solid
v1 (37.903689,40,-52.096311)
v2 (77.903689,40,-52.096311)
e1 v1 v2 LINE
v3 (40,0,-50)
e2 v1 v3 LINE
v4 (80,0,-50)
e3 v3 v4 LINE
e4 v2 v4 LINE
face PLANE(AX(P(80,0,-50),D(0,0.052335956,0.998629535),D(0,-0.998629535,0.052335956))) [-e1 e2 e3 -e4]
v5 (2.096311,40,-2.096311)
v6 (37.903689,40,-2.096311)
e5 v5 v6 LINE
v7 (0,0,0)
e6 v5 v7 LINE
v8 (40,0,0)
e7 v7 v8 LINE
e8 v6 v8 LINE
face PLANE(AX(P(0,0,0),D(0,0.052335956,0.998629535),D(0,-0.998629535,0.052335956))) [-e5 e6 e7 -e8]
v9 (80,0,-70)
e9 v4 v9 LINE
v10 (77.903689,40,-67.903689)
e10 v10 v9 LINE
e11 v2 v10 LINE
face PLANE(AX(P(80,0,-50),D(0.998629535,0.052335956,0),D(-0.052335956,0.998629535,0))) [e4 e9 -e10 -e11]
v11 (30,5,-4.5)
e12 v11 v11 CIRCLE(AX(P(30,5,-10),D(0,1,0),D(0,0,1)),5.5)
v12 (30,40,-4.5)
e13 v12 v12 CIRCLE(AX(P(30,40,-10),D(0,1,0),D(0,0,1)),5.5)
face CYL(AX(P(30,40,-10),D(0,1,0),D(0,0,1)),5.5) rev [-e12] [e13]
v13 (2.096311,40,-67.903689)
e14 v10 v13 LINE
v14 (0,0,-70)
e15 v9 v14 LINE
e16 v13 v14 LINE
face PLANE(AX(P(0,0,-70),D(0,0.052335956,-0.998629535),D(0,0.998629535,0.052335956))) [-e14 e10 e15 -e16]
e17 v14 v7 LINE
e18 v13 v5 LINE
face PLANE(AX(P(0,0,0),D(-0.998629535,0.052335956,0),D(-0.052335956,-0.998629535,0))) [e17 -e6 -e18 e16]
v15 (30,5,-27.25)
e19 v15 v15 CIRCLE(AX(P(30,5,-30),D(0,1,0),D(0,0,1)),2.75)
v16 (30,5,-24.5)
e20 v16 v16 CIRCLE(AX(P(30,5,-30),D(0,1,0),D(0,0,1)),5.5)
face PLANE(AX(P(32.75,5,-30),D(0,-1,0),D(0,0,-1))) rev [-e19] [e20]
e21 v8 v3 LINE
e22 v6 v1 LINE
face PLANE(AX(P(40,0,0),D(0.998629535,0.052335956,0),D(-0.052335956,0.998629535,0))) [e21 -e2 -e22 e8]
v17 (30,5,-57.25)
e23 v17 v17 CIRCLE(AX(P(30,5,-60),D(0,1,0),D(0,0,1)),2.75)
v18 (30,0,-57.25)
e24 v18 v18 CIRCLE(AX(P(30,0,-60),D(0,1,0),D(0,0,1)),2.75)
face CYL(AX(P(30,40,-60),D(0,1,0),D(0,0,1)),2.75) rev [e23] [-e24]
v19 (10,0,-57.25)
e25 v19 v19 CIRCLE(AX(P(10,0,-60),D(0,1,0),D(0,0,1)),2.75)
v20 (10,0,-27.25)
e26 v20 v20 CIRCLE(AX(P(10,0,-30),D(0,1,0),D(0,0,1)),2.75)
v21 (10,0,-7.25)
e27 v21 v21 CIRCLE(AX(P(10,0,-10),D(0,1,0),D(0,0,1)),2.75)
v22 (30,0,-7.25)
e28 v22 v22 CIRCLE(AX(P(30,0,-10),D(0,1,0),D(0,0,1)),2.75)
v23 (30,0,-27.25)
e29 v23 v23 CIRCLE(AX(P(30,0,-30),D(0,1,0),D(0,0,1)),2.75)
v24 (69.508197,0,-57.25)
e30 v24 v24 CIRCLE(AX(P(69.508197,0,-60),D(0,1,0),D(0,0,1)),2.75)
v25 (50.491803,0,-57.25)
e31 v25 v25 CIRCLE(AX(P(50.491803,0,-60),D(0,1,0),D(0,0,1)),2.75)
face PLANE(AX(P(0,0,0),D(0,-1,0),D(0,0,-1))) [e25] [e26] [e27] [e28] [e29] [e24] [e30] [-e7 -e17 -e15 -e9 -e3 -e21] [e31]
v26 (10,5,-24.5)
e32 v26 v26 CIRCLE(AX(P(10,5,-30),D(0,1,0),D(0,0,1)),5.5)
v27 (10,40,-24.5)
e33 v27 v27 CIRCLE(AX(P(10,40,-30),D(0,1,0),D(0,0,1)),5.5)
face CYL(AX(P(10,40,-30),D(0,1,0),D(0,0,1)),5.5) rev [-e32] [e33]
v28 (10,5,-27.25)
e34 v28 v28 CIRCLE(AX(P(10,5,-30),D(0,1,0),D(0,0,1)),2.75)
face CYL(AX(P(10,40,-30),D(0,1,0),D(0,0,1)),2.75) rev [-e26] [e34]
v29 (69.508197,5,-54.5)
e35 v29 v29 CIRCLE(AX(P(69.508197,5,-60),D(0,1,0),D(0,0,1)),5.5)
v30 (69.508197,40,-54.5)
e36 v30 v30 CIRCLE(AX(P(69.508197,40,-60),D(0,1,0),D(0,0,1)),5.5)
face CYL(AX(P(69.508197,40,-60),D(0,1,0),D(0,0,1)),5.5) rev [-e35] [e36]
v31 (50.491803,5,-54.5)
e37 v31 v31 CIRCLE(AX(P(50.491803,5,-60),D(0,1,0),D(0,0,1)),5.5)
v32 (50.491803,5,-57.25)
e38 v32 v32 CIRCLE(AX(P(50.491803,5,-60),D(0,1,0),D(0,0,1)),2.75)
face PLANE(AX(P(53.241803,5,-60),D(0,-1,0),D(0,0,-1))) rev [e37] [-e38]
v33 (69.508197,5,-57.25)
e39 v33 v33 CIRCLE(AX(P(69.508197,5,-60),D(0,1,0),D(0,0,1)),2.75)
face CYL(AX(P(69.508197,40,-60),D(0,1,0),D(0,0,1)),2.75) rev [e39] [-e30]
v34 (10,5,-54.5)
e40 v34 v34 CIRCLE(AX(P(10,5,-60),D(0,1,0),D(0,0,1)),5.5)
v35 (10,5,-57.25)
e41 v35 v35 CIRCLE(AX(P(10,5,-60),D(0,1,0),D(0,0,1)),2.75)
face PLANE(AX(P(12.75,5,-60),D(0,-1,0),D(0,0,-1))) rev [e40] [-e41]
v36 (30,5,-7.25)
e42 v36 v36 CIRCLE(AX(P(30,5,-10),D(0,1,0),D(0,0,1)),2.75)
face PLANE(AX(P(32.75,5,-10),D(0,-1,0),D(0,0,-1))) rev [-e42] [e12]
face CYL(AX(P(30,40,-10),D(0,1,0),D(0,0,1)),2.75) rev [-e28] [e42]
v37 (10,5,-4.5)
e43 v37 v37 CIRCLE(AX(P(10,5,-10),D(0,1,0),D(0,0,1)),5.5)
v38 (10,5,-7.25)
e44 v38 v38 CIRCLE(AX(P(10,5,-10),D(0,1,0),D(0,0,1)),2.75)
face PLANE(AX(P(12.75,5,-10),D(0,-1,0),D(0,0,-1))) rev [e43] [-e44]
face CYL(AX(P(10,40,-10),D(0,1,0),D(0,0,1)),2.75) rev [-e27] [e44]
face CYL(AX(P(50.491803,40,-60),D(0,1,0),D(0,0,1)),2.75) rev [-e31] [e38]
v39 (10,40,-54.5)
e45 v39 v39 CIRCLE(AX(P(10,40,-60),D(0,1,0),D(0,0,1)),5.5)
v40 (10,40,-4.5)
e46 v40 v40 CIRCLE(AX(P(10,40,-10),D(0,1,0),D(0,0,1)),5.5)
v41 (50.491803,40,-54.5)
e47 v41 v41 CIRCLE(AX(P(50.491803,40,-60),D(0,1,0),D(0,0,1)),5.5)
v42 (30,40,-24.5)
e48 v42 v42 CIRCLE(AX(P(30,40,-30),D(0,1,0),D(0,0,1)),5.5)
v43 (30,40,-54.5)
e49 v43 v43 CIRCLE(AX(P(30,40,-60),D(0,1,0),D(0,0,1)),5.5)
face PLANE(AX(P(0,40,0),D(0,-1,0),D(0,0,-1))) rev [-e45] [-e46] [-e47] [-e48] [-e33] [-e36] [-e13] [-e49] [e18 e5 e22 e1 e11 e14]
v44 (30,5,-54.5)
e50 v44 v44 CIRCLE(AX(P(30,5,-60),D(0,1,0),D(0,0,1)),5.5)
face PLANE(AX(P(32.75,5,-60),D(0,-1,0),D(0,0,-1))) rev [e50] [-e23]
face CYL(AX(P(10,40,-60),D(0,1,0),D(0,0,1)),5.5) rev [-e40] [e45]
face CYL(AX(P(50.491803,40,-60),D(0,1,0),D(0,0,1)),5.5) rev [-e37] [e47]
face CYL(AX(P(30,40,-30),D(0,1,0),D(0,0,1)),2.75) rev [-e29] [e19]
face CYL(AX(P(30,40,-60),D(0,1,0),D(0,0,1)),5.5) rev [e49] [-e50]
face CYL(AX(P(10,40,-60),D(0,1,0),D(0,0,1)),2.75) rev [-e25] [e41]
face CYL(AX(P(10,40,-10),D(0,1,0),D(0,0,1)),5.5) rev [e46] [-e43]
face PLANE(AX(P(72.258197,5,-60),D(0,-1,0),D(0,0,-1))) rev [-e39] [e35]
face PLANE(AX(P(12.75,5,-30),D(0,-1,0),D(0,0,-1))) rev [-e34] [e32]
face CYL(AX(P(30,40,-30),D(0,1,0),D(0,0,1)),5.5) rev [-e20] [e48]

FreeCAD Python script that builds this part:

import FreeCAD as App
import Part
import Sketcher

V = App.Vector


def add_polygon(sketch, points):
    """Adds a closed chain of lines whose ends are joined by coincident constraints."""
    first, n = sketch.GeometryCount, len(points)
    for a, b in zip(points, points[1:] + points[:1]):
        sketch.addGeometry(Part.LineSegment(App.Vector(*a, 0), App.Vector(*b, 0)), False)
    for i in range(n):
        sketch.addConstraint(Sketcher.Constraint("Coincident", first + i, 2, first + (i + 1) % n, 1))

doc = App.newDocument("Part")
body = doc.addObject("PartDesign::Body", "Body")

# Sketch on XZ plane
sketch1 = body.newObject("Sketcher::SketchObject", "Sketch")
sketch1.AttachmentSupport = (doc.getObject("XZ_Plane"), [""])
sketch1.MapMode = "FlatFace"
add_polygon(sketch1, [(0, 0), (40, 0), (40, -50), (80, -50), (80, -70), (0, -70)])  # lines 0-5
sketch1.addConstraint(Sketcher.Constraint("Horizontal", 0))
sketch1.addConstraint(Sketcher.Constraint("Vertical", 1))
sketch1.addConstraint(Sketcher.Constraint("Horizontal", 2))
sketch1.addConstraint(Sketcher.Constraint("Vertical", 3))
sketch1.addConstraint(Sketcher.Constraint("Horizontal", 4))
sketch1.addConstraint(Sketcher.Constraint("Vertical", 5))
sketch1.addConstraint(Sketcher.Constraint("Coincident", 5, 2, -1, 1))
sketch1.addConstraint(Sketcher.Constraint("Equal", 0, 2))
sketch1.addConstraint(Sketcher.Constraint("DistanceX", 0, 1, 0, 2, 40.0))
sketch1.addConstraint(Sketcher.Constraint("DistanceY", 1, 2, 1, 1, 50.0))
sketch1.addConstraint(Sketcher.Constraint("DistanceY", 3, 2, 3, 1, 20.0))
pad1 = body.newObject("PartDesign::Pad", "Pad")
pad1.Profile = sketch1
pad1.Length = 40
pad1.Reversed = True
pad1.TaperAngle = -3

# Sketch on XZ plane
sketch2 = body.newObject("Sketcher::SketchObject", "Sketch001")
sketch2.AttachmentSupport = (doc.getObject("XZ_Plane"), [""])
sketch2.MapMode = "FlatFace"
sketch2.AttachmentOffset = App.Placement(V(0, 0, -40), App.Rotation())
sketch2.addGeometry(Part.Circle(V(69.5, -60, 0), V(0, 0, 1), 2.8), False)
sketch2.addGeometry(Part.Circle(V(30, -10, 0), V(0, 0, 1), 2.8), False)
sketch2.addGeometry(Part.Circle(V(10, -10, 0), V(0, 0, 1), 2.8), False)
sketch2.addGeometry(Part.Circle(V(10, -60, 0), V(0, 0, 1), 2.8), False)
sketch2.addGeometry(Part.Circle(V(50.5, -60, 0), V(0, 0, 1), 2.8), False)
sketch2.addGeometry(Part.Circle(V(30, -60, 0), V(0, 0, 1), 2.8), False)
sketch2.addGeometry(Part.Circle(V(10, -30, 0), V(0, 0, 1), 2.8), False)
sketch2.addGeometry(Part.Circle(V(30, -30, 0), V(0, 0, 1), 2.8), False)
sketch2.addConstraint(Sketcher.Constraint("Equal", 0, 1))
sketch2.addConstraint(Sketcher.Constraint("Equal", 1, 2))
sketch2.addConstraint(Sketcher.Constraint("Equal", 2, 3))
sketch2.addConstraint(Sketcher.Constraint("Equal", 3, 4))
sketch2.addConstraint(Sketcher.Constraint("Equal", 4, 5))
sketch2.addConstraint(Sketcher.Constraint("Equal", 5, 6))
sketch2.addConstraint(Sketcher.Constraint("Equal", 6, 7))
sketch2.addConstraint(Sketcher.Constraint("Horizontal", 1, 3, 2, 3))
sketch2.addConstraint(Sketcher.Constraint("Horizontal", 0, 3, 3, 3))
sketch2.addConstraint(Sketcher.Constraint("Horizontal", 3, 3, 4, 3))
sketch2.addConstraint(Sketcher.Constraint("Horizontal", 4, 3, 5, 3))
sketch2.addConstraint(Sketcher.Constraint("Horizontal", 6, 3, 7, 3))
sketch2.addConstraint(Sketcher.Constraint("Vertical", 2, 3, 3, 3))
sketch2.addConstraint(Sketcher.Constraint("Vertical", 1, 3, 5, 3))
sketch2.addConstraint(Sketcher.Constraint("Vertical", 3, 3, 6, 3))
sketch2.addConstraint(Sketcher.Constraint("Vertical", 5, 3, 7, 3))
sketch2.addConstraint(Sketcher.Constraint("Diameter", 0, 5.5))
sketch2.addConstraint(Sketcher.Constraint("DistanceY", 0, 3, -1, 1, 60.0))
sketch2.addConstraint(Sketcher.Constraint("DistanceX", -1, 1, 1, 3, 30.0))
sketch2.addConstraint(Sketcher.Constraint("DistanceY", 1, 3, -1, 1, 10.0))
sketch2.addConstraint(Sketcher.Constraint("DistanceX", -1, 1, 2, 3, 10.0))
sketch2.addConstraint(Sketcher.Constraint("DistanceY", 6, 3, -1, 1, 30.0))
sketch2.addConstraint(Sketcher.Constraint("DistanceX", -1, 1, 0, 3, 69.508197))
sketch2.addConstraint(Sketcher.Constraint("DistanceX", -1, 1, 4, 3, 50.491803))
doc.recompute()
hole = body.newObject("PartDesign::Hole", "Hole")
hole.Profile = sketch2
hole.ThreadType = "None"
hole.Diameter = 5.5
hole.DepthType = "ThroughAll"
hole.HoleCutType = "Counterbore"
hole.HoleCutDiameter = 11
hole.HoleCutDepth = 35
hole.Reversed = True

doc.recompute()
